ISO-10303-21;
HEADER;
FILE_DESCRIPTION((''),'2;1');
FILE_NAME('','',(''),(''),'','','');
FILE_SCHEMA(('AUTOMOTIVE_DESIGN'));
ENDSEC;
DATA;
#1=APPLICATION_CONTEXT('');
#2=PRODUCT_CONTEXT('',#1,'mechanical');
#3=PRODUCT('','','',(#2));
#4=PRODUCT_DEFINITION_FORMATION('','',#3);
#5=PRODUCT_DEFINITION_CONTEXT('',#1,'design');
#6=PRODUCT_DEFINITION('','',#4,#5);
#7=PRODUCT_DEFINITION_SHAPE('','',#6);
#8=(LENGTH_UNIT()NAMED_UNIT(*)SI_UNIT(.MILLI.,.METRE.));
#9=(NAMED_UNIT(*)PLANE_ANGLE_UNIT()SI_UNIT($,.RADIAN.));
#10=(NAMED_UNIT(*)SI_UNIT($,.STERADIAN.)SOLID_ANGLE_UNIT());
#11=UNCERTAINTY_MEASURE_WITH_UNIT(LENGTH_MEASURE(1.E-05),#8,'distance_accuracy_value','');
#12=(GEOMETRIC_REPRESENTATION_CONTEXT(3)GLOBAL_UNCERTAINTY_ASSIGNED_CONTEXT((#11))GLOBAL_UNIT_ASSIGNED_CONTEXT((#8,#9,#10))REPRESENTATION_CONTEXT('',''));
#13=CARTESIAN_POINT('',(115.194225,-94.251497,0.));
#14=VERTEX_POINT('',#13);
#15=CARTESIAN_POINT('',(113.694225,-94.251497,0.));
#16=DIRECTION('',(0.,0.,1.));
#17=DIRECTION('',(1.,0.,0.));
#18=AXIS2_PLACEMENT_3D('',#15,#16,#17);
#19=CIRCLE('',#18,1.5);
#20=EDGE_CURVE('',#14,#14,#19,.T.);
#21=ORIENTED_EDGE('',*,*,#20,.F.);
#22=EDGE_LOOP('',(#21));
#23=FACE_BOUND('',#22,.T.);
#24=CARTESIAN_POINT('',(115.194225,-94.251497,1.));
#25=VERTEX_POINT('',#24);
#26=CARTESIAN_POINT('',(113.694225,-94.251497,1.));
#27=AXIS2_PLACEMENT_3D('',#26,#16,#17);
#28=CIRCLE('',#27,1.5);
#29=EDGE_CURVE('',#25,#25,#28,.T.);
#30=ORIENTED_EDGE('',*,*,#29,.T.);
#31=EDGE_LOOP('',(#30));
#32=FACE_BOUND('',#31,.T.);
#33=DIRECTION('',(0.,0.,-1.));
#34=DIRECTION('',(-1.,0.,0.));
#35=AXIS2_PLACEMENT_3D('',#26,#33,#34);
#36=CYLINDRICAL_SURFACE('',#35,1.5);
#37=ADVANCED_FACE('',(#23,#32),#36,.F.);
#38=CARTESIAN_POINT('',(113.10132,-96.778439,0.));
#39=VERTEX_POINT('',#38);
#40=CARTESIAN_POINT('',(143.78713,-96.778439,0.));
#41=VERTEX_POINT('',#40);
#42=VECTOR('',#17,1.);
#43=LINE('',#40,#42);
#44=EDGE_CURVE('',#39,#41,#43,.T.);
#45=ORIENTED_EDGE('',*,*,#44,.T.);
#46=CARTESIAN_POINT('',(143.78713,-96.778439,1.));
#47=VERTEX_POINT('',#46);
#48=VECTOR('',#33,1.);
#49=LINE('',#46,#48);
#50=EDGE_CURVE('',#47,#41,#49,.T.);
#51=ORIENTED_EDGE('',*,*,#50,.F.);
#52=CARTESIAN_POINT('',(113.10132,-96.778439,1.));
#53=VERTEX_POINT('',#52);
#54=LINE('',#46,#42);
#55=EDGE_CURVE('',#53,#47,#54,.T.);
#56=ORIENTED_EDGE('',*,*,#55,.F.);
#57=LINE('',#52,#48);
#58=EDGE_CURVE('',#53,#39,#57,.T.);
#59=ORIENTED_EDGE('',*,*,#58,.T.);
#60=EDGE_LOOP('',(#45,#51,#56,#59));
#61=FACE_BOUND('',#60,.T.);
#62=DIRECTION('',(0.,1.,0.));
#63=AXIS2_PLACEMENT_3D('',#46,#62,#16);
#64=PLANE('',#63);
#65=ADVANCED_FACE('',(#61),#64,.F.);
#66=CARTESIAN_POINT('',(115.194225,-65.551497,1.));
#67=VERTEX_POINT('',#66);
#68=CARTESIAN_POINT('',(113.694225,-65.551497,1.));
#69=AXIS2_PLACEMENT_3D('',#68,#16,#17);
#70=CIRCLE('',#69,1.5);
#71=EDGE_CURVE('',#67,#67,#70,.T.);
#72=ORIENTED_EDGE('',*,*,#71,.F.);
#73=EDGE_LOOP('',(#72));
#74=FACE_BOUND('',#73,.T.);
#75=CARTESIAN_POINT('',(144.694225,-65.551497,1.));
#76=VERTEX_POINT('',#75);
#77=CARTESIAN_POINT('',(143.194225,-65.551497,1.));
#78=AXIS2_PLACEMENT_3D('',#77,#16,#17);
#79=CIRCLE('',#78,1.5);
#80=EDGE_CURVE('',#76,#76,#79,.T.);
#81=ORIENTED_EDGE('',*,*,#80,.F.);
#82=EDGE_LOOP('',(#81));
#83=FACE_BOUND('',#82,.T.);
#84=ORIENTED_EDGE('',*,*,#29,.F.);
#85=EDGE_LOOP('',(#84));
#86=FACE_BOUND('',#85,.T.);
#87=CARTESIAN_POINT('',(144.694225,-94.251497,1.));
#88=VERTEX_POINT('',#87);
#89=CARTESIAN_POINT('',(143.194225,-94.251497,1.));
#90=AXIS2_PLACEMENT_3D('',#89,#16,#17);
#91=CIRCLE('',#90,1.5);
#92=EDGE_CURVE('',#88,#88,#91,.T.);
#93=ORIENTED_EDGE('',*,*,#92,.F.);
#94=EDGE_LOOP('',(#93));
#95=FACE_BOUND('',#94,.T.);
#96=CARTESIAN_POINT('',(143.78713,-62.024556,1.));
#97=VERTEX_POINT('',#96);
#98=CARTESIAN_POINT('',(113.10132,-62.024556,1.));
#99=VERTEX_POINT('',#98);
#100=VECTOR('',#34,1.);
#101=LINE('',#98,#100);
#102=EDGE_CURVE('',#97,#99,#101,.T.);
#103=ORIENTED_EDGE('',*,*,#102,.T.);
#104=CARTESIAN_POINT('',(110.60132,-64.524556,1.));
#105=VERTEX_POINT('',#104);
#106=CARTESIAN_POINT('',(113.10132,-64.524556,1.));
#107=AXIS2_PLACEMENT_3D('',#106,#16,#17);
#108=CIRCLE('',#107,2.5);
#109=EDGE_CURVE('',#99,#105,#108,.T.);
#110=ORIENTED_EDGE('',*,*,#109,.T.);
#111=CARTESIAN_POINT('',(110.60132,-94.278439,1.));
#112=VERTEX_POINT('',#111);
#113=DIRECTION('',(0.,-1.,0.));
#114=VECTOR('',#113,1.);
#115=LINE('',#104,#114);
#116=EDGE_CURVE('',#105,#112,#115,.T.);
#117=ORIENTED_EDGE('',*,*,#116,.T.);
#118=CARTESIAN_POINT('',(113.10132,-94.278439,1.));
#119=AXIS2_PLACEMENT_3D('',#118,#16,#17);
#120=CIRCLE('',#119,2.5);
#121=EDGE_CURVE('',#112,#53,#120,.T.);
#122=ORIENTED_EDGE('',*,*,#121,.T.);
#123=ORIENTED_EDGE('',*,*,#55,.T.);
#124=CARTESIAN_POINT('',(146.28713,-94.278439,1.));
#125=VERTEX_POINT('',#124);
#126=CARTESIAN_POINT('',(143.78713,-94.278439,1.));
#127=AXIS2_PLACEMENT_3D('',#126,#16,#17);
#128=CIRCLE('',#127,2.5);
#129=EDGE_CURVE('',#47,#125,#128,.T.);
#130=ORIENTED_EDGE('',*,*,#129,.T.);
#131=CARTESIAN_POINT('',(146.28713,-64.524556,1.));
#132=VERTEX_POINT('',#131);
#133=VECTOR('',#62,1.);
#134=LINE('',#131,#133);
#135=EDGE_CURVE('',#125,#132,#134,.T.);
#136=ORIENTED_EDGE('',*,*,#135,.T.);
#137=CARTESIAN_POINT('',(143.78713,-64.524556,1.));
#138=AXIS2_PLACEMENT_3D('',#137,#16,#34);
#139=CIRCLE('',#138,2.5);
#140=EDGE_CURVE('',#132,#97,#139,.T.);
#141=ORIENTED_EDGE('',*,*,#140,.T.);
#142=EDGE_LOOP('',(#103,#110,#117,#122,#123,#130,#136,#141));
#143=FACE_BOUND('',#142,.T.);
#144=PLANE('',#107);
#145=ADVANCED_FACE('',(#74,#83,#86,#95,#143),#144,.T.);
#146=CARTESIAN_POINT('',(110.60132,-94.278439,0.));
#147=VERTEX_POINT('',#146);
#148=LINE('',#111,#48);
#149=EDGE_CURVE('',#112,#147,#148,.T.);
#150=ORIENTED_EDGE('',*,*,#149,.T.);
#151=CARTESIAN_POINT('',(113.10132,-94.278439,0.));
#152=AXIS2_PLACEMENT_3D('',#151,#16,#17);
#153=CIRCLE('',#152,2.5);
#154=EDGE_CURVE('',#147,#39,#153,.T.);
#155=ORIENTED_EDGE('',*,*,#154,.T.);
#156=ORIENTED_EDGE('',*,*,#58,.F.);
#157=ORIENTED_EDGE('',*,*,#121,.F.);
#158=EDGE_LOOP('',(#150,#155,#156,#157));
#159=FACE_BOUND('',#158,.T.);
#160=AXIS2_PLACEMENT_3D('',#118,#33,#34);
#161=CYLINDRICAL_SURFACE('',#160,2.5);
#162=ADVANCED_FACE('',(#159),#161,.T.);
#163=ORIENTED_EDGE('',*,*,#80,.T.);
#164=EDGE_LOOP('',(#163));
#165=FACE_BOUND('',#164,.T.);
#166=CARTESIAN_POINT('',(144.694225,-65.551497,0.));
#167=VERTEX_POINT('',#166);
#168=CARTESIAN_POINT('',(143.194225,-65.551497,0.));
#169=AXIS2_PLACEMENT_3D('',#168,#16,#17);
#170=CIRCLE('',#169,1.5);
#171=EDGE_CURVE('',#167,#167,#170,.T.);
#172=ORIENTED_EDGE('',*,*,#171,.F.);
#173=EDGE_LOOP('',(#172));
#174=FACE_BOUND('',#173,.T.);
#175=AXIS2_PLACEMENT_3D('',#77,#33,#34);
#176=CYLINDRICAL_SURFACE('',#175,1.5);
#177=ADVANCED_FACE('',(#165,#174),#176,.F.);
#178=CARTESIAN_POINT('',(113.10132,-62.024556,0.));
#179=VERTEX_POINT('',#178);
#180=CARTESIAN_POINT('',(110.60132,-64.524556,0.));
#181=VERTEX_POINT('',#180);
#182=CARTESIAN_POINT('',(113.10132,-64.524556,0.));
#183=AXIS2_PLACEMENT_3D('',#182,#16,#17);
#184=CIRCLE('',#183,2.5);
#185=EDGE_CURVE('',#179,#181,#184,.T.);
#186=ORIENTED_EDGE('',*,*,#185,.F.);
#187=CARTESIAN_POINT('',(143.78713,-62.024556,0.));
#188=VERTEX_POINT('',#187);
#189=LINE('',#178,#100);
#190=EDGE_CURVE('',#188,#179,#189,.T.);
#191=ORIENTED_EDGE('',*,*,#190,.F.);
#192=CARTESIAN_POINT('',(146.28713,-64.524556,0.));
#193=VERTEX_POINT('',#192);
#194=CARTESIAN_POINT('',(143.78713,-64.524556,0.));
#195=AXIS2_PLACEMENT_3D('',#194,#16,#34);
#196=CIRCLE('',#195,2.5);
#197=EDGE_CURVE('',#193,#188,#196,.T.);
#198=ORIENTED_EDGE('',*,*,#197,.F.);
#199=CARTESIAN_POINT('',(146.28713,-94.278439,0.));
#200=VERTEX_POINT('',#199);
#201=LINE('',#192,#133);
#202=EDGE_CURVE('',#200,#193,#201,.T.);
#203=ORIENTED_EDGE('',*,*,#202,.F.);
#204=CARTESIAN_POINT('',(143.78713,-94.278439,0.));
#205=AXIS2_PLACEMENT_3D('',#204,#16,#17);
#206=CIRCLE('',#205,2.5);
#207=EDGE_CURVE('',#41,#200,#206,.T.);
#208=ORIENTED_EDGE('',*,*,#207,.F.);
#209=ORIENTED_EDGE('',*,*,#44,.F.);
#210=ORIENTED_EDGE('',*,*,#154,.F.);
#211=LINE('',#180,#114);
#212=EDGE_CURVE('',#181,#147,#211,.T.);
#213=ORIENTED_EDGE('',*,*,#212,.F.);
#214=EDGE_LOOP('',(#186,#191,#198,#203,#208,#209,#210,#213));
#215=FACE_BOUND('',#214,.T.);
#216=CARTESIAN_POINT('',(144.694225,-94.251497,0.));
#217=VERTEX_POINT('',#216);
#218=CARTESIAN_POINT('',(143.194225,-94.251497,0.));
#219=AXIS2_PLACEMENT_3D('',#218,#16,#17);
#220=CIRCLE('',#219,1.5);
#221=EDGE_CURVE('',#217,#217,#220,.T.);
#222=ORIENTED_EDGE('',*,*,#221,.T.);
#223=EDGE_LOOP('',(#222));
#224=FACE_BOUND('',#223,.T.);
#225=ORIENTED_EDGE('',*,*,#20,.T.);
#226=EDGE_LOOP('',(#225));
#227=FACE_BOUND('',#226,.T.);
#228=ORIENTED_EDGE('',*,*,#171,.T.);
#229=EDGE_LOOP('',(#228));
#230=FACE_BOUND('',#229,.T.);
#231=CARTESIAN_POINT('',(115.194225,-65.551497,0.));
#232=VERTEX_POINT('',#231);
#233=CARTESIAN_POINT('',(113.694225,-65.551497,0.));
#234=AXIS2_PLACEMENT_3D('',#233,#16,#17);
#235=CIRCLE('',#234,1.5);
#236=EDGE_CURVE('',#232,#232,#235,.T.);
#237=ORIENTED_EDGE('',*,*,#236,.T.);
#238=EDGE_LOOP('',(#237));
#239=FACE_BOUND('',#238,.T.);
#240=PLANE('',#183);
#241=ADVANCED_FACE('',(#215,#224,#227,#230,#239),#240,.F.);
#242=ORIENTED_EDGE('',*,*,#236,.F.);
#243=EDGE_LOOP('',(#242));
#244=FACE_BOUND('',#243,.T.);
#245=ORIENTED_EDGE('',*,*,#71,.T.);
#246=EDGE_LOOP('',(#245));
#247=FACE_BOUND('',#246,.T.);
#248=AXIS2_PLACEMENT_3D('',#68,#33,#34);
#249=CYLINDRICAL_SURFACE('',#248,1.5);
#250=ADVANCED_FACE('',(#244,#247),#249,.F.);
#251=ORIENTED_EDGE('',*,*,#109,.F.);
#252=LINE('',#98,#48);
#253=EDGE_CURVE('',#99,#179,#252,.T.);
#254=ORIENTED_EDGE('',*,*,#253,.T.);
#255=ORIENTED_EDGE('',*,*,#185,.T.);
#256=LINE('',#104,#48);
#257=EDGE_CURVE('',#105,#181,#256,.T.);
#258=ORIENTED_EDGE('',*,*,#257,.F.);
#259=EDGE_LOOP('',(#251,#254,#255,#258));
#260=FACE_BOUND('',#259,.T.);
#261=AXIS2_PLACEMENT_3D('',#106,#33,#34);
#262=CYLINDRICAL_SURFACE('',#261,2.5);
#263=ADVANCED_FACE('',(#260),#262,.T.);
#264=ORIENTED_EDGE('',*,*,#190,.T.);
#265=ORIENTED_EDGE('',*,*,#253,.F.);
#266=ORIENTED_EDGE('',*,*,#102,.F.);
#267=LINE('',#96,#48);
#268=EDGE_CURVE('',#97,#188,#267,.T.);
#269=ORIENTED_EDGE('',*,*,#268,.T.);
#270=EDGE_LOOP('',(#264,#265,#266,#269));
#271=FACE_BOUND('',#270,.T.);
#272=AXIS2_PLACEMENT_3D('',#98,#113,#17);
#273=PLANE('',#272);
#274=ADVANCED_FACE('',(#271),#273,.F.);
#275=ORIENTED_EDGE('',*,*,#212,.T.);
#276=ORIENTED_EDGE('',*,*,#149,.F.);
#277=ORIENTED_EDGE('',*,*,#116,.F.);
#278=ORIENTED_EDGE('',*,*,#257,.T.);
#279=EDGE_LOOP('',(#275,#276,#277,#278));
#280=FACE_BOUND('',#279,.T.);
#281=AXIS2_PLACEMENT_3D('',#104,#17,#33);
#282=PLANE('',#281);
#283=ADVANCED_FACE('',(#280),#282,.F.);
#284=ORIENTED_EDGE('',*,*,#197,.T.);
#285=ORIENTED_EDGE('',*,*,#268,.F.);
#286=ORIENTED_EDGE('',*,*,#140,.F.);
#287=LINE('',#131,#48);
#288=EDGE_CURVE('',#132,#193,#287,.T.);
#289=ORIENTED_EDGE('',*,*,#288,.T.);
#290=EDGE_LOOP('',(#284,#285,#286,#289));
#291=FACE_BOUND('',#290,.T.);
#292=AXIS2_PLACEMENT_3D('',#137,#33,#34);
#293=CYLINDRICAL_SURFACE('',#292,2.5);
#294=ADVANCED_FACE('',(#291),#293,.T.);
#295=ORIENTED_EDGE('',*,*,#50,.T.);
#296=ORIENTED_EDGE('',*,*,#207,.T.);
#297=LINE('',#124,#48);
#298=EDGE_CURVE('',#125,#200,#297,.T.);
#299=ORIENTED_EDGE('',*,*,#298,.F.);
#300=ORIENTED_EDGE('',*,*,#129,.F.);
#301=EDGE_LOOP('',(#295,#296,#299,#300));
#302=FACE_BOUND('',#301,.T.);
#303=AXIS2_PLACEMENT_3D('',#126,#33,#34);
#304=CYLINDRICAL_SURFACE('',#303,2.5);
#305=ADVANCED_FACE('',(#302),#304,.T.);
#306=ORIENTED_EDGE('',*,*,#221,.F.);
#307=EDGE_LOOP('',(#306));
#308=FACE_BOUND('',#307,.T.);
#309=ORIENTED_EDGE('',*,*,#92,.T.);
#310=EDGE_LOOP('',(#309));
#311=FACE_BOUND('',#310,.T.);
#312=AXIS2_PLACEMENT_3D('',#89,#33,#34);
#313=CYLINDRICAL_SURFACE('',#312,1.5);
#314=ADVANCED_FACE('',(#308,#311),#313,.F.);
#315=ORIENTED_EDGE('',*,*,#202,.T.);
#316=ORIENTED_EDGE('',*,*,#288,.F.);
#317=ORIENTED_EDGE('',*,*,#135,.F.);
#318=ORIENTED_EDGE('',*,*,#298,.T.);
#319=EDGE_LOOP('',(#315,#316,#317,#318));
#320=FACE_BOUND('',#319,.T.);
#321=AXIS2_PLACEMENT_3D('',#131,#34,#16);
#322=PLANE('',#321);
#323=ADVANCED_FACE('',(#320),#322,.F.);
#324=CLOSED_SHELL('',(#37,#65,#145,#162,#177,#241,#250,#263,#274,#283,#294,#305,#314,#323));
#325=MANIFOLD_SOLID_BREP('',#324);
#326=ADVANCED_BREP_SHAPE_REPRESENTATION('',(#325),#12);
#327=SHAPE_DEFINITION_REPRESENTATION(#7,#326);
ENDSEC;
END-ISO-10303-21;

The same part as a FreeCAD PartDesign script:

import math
import FreeCAD as App
import Part
import Sketcher
from FreeCAD import Vector

doc = App.newDocument("Part")
body = doc.addObject("PartDesign::Body", "Body")

sketch1 = body.newObject("Sketcher::SketchObject", "Sketch")
sketch1.AttachmentSupport = (doc.getObject("XY_Plane"), [""])
sketch1.MapMode = "FlatFace"
sketch1.addGeometry([
    Part.LineSegment(Vector(143.8, -62, 0), Vector(113.1, -62, 0)),
    Part.ArcOfCircle(Part.Circle(Vector(113.1, -64.5, 0), Vector(0, 0, 1), 2.5), math.radians(90), math.radians(180)),
    Part.LineSegment(Vector(110.6, -64.5, 0), Vector(110.6, -94.3, 0)),
    Part.ArcOfCircle(Part.Circle(Vector(113.1, -94.3, 0), Vector(0, 0, 1), 2.5), math.radians(180), math.radians(270)),
    Part.LineSegment(Vector(113.1, -96.8, 0), Vector(143.8, -96.8, 0)),
    Part.ArcOfCircle(Part.Circle(Vector(143.8, -94.3, 0), Vector(0, 0, 1), 2.5), math.radians(-90), math.radians(0)),
    Part.LineSegment(Vector(146.3, -94.3, 0), Vector(146.3, -64.5, 0)),
    Part.ArcOfCircle(Part.Circle(Vector(143.8, -64.5, 0), Vector(0, 0, 1), 2.5), math.radians(0), math.radians(90)),
    Part.Circle(Vector(143.2, -94.3, 0), Vector(0, 0, 1), 1.5),
    Part.Circle(Vector(113.7, -94.3, 0), Vector(0, 0, 1), 1.5),
    Part.Circle(Vector(143.2, -65.6, 0), Vector(0, 0, 1), 1.5),
    Part.Circle(Vector(113.7, -65.6, 0), Vector(0, 0, 1), 1.5),
], False)
sketch1.addConstraint([
    Sketcher.Constraint("Tangent", 0, 2, 1, 1),
    Sketcher.Constraint("Tangent", 1, 2, 2, 1),
    Sketcher.Constraint("Tangent", 2, 2, 3, 1),
    Sketcher.Constraint("Tangent", 3, 2, 4, 1),
    Sketcher.Constraint("Tangent", 4, 2, 5, 1),
    Sketcher.Constraint("Tangent", 5, 2, 6, 1),
    Sketcher.Constraint("Tangent", 6, 2, 7, 1),
    Sketcher.Constraint("Tangent", 7, 2, 0, 1),
    Sketcher.Constraint("Horizontal", 0),
    Sketcher.Constraint("Vertical", 2),
    Sketcher.Constraint("Horizontal", 4),
    Sketcher.Constraint("Vertical", 6),
    Sketcher.Constraint("Equal", 1, 3),
    Sketcher.Constraint("Equal", 3, 5),
    Sketcher.Constraint("Equal", 5, 7),
    Sketcher.Constraint("Equal", 8, 9),
    Sketcher.Constraint("Equal", 9, 10),
    Sketcher.Constraint("Equal", 10, 11),
    Sketcher.Constraint("Horizontal", 8, 3, 9, 3),
    Sketcher.Constraint("Horizontal", 10, 3, 11, 3),
    Sketcher.Constraint("Vertical", 8, 3, 10, 3),
    Sketcher.Constraint("Vertical", 9, 3, 11, 3),
    Sketcher.Constraint("Diameter", 8, 3.0),
    Sketcher.Constraint("Radius", 1, 2.5),
    Sketcher.Constraint("DistanceX", 9, 3, 8, 3, 29.5),
    Sketcher.Constraint("DistanceY", 8, 3, 10, 3, 28.7),
    Sketcher.Constraint("DistanceX", 0, 2, 0, 1, 30.68581),
    Sketcher.Constraint("DistanceY", 2, 2, 2, 1, 29.753883),
    Sketcher.Constraint("DistanceX", -1, 1, 1, 3, 113.10132),
    Sketcher.Constraint("DistanceY", 3, 3, -1, 1, 94.278439),
    Sketcher.Constraint("DistanceY", 5, 3, 8, 3, 0.026941),
    Sketcher.Constraint("DistanceX", -1, 1, 8, 3, 143.194225),
])
pad1 = body.newObject("PartDesign::Pad", "Pad")
pad1.Profile = sketch1
pad1.Length = 1

doc.recompute()
